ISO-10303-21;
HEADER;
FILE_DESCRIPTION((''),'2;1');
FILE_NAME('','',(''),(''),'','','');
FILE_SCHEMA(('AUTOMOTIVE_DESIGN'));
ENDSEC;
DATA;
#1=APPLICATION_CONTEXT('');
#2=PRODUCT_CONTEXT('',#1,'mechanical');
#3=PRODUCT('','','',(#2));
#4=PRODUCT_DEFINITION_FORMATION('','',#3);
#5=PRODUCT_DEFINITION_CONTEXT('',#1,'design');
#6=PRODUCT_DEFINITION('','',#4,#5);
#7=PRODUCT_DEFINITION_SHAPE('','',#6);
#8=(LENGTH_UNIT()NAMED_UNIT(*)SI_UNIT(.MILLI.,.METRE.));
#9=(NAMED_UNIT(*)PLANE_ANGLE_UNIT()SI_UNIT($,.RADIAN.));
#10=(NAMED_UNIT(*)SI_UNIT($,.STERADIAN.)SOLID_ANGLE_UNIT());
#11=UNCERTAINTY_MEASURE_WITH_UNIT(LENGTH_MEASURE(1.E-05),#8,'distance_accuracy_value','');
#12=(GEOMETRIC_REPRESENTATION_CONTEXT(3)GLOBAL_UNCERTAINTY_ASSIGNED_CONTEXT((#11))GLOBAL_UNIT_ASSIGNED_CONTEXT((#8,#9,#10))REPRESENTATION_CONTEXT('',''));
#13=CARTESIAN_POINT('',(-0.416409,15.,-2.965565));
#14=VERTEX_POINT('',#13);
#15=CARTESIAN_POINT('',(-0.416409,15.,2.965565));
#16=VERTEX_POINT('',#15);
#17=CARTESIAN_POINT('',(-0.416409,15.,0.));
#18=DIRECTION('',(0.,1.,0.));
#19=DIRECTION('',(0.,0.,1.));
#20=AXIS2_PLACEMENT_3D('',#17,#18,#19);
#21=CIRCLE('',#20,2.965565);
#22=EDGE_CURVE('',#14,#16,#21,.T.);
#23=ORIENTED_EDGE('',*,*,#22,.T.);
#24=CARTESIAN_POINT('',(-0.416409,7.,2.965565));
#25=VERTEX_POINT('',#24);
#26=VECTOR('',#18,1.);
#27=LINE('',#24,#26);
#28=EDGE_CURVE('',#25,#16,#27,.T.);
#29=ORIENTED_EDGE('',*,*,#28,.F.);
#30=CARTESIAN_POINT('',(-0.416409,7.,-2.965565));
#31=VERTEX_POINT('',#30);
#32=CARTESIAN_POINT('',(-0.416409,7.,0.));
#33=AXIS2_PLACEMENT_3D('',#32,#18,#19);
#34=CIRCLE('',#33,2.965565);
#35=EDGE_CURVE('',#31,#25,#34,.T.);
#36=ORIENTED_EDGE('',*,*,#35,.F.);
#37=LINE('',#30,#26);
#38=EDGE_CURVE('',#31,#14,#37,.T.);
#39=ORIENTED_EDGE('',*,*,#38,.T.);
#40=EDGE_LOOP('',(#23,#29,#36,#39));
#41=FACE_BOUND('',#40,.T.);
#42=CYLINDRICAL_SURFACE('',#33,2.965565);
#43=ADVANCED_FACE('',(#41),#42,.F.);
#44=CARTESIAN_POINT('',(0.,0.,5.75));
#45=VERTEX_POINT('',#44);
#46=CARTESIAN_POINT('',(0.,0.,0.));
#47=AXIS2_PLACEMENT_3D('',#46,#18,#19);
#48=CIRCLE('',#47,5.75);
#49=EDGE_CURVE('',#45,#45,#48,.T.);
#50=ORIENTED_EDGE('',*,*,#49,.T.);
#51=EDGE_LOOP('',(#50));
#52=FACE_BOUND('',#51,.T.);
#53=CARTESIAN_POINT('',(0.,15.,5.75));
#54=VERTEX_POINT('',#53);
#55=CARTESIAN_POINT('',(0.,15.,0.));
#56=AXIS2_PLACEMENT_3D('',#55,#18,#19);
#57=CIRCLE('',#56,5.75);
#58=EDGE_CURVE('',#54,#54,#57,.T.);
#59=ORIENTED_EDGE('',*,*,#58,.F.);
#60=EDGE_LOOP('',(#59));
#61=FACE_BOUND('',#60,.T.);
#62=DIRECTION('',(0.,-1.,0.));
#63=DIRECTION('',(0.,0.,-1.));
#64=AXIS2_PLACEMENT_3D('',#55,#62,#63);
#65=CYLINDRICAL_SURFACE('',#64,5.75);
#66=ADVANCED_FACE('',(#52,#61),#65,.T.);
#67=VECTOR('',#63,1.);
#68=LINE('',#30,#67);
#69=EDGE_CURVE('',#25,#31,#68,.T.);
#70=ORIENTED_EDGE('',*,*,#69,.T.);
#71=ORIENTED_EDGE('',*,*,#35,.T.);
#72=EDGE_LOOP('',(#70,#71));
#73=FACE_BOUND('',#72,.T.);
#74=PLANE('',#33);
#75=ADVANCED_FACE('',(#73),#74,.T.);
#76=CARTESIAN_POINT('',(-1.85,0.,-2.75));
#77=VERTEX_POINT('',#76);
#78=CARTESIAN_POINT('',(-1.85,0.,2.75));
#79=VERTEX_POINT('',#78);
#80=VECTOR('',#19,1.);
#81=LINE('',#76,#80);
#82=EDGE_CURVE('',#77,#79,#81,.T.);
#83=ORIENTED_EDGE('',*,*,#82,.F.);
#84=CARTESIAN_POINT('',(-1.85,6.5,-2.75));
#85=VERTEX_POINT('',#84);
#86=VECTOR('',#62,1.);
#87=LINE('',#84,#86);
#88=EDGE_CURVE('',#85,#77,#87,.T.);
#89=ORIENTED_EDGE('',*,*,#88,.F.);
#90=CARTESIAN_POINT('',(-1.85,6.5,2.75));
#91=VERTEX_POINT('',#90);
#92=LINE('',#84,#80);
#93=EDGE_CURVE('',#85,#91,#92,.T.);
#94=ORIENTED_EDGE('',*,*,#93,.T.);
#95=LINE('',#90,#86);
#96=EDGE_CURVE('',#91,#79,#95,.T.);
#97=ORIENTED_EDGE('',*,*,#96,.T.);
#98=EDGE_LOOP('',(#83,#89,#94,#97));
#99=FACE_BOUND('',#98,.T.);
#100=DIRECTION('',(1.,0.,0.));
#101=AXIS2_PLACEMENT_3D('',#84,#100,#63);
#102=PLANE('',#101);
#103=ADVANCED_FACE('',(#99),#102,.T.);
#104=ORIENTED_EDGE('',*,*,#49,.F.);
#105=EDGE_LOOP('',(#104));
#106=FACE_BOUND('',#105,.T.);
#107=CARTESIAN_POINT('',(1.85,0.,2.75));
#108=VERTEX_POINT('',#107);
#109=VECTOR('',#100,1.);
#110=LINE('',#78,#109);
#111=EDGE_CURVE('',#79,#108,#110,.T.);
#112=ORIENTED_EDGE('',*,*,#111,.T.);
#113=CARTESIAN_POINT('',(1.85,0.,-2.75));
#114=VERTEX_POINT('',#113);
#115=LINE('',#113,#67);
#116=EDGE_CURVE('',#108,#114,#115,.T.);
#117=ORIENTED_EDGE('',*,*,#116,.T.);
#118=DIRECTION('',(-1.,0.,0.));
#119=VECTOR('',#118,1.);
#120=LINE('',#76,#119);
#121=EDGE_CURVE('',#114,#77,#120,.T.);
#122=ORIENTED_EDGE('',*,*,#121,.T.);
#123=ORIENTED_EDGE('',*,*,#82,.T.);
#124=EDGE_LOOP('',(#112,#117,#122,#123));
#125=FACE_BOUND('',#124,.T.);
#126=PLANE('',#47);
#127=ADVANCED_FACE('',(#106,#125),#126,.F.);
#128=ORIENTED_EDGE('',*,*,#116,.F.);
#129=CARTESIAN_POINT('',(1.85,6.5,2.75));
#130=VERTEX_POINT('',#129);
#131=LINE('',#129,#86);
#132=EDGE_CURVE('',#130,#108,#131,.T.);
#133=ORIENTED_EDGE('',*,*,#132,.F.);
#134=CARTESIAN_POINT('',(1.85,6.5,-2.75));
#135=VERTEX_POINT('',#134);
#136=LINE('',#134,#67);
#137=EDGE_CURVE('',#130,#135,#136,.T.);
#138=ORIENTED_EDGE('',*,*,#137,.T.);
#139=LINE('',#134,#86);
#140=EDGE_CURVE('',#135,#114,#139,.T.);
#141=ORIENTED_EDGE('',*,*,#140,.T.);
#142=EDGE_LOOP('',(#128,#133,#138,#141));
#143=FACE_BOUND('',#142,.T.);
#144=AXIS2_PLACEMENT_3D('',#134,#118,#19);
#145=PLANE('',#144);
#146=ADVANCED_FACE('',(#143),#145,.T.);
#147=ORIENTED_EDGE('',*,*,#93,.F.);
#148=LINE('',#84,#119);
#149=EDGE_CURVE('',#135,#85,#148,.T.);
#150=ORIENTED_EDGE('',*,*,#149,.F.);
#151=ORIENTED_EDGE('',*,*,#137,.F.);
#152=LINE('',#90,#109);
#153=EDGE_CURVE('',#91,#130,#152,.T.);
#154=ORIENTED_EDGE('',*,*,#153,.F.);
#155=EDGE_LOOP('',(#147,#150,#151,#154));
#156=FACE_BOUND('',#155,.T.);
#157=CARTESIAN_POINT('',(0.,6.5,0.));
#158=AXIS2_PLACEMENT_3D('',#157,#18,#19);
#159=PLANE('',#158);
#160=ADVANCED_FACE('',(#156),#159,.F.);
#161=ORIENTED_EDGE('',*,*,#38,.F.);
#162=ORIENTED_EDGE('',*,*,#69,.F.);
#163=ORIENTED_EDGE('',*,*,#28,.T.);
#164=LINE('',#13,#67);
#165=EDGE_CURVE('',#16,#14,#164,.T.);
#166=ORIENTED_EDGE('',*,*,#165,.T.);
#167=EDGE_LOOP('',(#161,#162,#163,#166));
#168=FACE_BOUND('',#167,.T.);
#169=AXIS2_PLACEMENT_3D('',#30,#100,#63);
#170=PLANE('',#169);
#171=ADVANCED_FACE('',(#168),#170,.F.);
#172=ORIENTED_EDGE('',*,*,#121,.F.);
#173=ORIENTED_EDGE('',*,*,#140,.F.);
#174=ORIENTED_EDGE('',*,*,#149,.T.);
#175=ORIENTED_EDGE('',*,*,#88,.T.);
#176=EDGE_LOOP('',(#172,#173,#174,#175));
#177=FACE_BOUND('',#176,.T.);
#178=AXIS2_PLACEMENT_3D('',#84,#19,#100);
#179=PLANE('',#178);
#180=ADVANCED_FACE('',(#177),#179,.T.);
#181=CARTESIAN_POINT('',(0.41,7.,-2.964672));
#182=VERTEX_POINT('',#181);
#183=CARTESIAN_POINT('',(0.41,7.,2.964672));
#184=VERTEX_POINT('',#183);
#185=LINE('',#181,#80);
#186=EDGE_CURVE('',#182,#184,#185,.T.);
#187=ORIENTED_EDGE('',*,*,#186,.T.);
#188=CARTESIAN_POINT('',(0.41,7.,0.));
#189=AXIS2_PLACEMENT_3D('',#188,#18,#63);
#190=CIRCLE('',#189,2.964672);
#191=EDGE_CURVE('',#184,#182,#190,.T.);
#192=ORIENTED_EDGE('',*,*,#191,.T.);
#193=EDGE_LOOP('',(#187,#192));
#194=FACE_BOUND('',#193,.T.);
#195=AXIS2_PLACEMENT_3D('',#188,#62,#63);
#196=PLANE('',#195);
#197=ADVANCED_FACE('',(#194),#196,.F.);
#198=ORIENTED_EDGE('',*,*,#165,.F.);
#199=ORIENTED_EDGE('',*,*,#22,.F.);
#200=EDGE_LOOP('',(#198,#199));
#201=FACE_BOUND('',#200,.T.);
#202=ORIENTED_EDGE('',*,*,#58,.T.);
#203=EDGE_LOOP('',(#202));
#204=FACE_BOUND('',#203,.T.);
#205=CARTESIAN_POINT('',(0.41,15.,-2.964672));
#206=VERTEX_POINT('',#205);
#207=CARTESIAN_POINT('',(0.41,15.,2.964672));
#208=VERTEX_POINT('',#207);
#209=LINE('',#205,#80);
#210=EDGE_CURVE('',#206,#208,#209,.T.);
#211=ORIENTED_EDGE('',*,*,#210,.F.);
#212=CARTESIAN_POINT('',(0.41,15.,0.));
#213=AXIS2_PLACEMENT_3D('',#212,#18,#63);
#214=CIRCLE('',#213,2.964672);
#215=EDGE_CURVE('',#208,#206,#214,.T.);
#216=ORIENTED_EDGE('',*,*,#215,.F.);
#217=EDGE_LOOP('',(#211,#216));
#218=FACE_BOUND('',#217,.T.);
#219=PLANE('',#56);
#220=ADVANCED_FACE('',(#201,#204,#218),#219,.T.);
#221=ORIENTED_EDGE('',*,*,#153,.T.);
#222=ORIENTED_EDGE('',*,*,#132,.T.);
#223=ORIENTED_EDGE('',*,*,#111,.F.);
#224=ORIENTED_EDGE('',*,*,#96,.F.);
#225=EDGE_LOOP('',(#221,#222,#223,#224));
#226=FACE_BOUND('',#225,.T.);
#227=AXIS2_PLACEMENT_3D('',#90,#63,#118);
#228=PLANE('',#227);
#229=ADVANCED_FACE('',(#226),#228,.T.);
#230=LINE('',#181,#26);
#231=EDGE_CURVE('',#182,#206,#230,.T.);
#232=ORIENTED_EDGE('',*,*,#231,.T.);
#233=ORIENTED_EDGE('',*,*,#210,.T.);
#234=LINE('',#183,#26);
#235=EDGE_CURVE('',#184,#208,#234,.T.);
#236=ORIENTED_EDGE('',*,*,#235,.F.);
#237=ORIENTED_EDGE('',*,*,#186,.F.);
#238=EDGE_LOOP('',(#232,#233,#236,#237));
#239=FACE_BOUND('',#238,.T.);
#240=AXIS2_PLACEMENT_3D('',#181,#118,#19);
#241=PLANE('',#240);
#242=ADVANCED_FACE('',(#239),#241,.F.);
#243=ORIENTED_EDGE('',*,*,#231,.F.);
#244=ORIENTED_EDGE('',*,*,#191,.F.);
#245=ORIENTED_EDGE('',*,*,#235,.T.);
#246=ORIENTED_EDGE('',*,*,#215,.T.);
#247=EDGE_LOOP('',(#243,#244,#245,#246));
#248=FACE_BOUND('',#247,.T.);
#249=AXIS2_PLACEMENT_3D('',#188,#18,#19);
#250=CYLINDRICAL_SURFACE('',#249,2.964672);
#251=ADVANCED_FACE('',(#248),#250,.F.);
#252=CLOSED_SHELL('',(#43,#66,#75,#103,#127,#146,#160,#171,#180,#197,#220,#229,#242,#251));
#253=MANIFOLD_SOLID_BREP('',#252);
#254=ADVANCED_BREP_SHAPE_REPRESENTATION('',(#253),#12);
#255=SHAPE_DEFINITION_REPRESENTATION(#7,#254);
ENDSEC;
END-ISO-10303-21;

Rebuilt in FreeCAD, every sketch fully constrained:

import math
import FreeCAD as App
import Part
import Sketcher
from FreeCAD import Vector
Q = App.Units.Quantity


def add_polygon(sketch, points):
    """Adds a closed chain of lines whose ends are joined by coincident constraints."""
    first, n = sketch.GeometryCount, len(points)
    for a, b in zip(points, points[1:] + points[:1]):
        sketch.addGeometry(Part.LineSegment(App.Vector(*a, 0), App.Vector(*b, 0)), False)
    for i in range(n):
        sketch.addConstraint(Sketcher.Constraint("Coincident", first + i, 2, first + (i + 1) % n, 1))

doc = App.newDocument("Part")
body = doc.addObject("PartDesign::Body", "Body")

# Sketch on XZ plane
sketch1 = doc.addObject("Sketcher::SketchObject", "Sketch")
body.addObject(sketch1)
sketch1.AttachmentSupport = (doc.XZ_Plane, [""])
sketch1.MapMode = "FlatFace"
sketch1.addGeometry(Part.Circle(Vector(0, 0, 0), Vector(0, 0, 1), 5.75), False)
sketch1.addConstraint([
    Sketcher.Constraint("Coincident", 0, 3, -1, 1),
    Sketcher.Constraint("Diameter", 0, Q("11.5 mm")),
])
pad1 = doc.addObject("PartDesign::Pad", "Pad")
body.addObject(pad1)
pad1.Profile = sketch1
pad1.Length = 15
pad1.Reversed = True

# Sketch on XZ plane
sketch2 = doc.addObject("Sketcher::SketchObject", "Sketch001")
body.addObject(sketch2)
sketch2.AttachmentSupport = (doc.XZ_Plane, [""])
sketch2.MapMode = "FlatFace"
sketch2.AttachmentOffset = App.Placement(Vector(0, 0, -15), App.Rotation())
sketch2.addGeometry([
    Part.LineSegment(Vector(0.41, -2.964672, 0), Vector(0.41, 2.964672, 0)),
    Part.ArcOfCircle(Part.Circle(Vector(0.41, 0, 0), Vector(0, 0, 1), 2.964672), math.radians(-90), math.radians(90)),
    Part.LineSegment(Vector(-0.416409, 2.965565, 0), Vector(-0.416409, -2.965565, 0)),
    Part.ArcOfCircle(Part.Circle(Vector(-0.416409, 0, 0), Vector(0, 0, 1), 2.965565), math.radians(90), math.radians(270)),
], False)
sketch2.addConstraint([
    Sketcher.Constraint("Coincident", 0, 1, 1, 1),
    Sketcher.Constraint("Coincident", 1, 2, 0, 2),
    Sketcher.Constraint("Coincident", 2, 1, 3, 1),
    Sketcher.Constraint("Coincident", 3, 2, 2, 2),
    Sketcher.Constraint("Vertical", 0),
    Sketcher.Constraint("Vertical", 2),
    Sketcher.Constraint("PointOnObject", 1, 3, -1),
    Sketcher.Constraint("PointOnObject", 3, 3, -1),
    Sketcher.Constraint("Vertical", 1, 3, 0, 1),
    Sketcher.Constraint("Vertical", 3, 3, 2, 1),
    Sketcher.Constraint("DistanceX", -1, 1, 1, 3, Q("0.41 mm")),
    Sketcher.Constraint("Radius", 1, Q("2.964672 mm")),
    Sketcher.Constraint("Radius", 3, Q("2.965565 mm")),
    Sketcher.Constraint("DistanceX", 3, 3, -1, 1, Q("0.416409 mm")),
])
pocket1 = doc.addObject("PartDesign::Pocket", "Pocket")
body.addObject(pocket1)
pocket1.Profile = sketch2
pocket1.Length = 8
pocket1.Reversed = True

# Sketch on XZ plane
sketch3 = doc.addObject("Sketcher::SketchObject", "Sketch002")
body.addObject(sketch3)
sketch3.AttachmentSupport = (doc.XZ_Plane, [""])
sketch3.MapMode = "FlatFace"
add_polygon(sketch3, [(-1.85, -2.75), (-1.85, 2.75), (1.85, 2.75), (1.85, -2.75)])  # lines 0-3
sketch3.addConstraint([
    Sketcher.Constraint("Vertical", 0),
    Sketcher.Constraint("Horizontal", 1),
    Sketcher.Constraint("Vertical", 2),
    Sketcher.Constraint("Horizontal", 3),
    Sketcher.Constraint("Symmetric", 0, 2, 2, 2, -1, 1),
    Sketcher.Constraint("DistanceX", 1, 1, 1, 2, Q("3.7 mm")),
    Sketcher.Constraint("DistanceY", 0, 1, 0, 2, Q("5.5 mm")),
])
pocket2 = doc.addObject("PartDesign::Pocket", "Pocket001")
body.addObject(pocket2)
pocket2.Profile = sketch3
pocket2.Length = 6.5

doc.recompute()
